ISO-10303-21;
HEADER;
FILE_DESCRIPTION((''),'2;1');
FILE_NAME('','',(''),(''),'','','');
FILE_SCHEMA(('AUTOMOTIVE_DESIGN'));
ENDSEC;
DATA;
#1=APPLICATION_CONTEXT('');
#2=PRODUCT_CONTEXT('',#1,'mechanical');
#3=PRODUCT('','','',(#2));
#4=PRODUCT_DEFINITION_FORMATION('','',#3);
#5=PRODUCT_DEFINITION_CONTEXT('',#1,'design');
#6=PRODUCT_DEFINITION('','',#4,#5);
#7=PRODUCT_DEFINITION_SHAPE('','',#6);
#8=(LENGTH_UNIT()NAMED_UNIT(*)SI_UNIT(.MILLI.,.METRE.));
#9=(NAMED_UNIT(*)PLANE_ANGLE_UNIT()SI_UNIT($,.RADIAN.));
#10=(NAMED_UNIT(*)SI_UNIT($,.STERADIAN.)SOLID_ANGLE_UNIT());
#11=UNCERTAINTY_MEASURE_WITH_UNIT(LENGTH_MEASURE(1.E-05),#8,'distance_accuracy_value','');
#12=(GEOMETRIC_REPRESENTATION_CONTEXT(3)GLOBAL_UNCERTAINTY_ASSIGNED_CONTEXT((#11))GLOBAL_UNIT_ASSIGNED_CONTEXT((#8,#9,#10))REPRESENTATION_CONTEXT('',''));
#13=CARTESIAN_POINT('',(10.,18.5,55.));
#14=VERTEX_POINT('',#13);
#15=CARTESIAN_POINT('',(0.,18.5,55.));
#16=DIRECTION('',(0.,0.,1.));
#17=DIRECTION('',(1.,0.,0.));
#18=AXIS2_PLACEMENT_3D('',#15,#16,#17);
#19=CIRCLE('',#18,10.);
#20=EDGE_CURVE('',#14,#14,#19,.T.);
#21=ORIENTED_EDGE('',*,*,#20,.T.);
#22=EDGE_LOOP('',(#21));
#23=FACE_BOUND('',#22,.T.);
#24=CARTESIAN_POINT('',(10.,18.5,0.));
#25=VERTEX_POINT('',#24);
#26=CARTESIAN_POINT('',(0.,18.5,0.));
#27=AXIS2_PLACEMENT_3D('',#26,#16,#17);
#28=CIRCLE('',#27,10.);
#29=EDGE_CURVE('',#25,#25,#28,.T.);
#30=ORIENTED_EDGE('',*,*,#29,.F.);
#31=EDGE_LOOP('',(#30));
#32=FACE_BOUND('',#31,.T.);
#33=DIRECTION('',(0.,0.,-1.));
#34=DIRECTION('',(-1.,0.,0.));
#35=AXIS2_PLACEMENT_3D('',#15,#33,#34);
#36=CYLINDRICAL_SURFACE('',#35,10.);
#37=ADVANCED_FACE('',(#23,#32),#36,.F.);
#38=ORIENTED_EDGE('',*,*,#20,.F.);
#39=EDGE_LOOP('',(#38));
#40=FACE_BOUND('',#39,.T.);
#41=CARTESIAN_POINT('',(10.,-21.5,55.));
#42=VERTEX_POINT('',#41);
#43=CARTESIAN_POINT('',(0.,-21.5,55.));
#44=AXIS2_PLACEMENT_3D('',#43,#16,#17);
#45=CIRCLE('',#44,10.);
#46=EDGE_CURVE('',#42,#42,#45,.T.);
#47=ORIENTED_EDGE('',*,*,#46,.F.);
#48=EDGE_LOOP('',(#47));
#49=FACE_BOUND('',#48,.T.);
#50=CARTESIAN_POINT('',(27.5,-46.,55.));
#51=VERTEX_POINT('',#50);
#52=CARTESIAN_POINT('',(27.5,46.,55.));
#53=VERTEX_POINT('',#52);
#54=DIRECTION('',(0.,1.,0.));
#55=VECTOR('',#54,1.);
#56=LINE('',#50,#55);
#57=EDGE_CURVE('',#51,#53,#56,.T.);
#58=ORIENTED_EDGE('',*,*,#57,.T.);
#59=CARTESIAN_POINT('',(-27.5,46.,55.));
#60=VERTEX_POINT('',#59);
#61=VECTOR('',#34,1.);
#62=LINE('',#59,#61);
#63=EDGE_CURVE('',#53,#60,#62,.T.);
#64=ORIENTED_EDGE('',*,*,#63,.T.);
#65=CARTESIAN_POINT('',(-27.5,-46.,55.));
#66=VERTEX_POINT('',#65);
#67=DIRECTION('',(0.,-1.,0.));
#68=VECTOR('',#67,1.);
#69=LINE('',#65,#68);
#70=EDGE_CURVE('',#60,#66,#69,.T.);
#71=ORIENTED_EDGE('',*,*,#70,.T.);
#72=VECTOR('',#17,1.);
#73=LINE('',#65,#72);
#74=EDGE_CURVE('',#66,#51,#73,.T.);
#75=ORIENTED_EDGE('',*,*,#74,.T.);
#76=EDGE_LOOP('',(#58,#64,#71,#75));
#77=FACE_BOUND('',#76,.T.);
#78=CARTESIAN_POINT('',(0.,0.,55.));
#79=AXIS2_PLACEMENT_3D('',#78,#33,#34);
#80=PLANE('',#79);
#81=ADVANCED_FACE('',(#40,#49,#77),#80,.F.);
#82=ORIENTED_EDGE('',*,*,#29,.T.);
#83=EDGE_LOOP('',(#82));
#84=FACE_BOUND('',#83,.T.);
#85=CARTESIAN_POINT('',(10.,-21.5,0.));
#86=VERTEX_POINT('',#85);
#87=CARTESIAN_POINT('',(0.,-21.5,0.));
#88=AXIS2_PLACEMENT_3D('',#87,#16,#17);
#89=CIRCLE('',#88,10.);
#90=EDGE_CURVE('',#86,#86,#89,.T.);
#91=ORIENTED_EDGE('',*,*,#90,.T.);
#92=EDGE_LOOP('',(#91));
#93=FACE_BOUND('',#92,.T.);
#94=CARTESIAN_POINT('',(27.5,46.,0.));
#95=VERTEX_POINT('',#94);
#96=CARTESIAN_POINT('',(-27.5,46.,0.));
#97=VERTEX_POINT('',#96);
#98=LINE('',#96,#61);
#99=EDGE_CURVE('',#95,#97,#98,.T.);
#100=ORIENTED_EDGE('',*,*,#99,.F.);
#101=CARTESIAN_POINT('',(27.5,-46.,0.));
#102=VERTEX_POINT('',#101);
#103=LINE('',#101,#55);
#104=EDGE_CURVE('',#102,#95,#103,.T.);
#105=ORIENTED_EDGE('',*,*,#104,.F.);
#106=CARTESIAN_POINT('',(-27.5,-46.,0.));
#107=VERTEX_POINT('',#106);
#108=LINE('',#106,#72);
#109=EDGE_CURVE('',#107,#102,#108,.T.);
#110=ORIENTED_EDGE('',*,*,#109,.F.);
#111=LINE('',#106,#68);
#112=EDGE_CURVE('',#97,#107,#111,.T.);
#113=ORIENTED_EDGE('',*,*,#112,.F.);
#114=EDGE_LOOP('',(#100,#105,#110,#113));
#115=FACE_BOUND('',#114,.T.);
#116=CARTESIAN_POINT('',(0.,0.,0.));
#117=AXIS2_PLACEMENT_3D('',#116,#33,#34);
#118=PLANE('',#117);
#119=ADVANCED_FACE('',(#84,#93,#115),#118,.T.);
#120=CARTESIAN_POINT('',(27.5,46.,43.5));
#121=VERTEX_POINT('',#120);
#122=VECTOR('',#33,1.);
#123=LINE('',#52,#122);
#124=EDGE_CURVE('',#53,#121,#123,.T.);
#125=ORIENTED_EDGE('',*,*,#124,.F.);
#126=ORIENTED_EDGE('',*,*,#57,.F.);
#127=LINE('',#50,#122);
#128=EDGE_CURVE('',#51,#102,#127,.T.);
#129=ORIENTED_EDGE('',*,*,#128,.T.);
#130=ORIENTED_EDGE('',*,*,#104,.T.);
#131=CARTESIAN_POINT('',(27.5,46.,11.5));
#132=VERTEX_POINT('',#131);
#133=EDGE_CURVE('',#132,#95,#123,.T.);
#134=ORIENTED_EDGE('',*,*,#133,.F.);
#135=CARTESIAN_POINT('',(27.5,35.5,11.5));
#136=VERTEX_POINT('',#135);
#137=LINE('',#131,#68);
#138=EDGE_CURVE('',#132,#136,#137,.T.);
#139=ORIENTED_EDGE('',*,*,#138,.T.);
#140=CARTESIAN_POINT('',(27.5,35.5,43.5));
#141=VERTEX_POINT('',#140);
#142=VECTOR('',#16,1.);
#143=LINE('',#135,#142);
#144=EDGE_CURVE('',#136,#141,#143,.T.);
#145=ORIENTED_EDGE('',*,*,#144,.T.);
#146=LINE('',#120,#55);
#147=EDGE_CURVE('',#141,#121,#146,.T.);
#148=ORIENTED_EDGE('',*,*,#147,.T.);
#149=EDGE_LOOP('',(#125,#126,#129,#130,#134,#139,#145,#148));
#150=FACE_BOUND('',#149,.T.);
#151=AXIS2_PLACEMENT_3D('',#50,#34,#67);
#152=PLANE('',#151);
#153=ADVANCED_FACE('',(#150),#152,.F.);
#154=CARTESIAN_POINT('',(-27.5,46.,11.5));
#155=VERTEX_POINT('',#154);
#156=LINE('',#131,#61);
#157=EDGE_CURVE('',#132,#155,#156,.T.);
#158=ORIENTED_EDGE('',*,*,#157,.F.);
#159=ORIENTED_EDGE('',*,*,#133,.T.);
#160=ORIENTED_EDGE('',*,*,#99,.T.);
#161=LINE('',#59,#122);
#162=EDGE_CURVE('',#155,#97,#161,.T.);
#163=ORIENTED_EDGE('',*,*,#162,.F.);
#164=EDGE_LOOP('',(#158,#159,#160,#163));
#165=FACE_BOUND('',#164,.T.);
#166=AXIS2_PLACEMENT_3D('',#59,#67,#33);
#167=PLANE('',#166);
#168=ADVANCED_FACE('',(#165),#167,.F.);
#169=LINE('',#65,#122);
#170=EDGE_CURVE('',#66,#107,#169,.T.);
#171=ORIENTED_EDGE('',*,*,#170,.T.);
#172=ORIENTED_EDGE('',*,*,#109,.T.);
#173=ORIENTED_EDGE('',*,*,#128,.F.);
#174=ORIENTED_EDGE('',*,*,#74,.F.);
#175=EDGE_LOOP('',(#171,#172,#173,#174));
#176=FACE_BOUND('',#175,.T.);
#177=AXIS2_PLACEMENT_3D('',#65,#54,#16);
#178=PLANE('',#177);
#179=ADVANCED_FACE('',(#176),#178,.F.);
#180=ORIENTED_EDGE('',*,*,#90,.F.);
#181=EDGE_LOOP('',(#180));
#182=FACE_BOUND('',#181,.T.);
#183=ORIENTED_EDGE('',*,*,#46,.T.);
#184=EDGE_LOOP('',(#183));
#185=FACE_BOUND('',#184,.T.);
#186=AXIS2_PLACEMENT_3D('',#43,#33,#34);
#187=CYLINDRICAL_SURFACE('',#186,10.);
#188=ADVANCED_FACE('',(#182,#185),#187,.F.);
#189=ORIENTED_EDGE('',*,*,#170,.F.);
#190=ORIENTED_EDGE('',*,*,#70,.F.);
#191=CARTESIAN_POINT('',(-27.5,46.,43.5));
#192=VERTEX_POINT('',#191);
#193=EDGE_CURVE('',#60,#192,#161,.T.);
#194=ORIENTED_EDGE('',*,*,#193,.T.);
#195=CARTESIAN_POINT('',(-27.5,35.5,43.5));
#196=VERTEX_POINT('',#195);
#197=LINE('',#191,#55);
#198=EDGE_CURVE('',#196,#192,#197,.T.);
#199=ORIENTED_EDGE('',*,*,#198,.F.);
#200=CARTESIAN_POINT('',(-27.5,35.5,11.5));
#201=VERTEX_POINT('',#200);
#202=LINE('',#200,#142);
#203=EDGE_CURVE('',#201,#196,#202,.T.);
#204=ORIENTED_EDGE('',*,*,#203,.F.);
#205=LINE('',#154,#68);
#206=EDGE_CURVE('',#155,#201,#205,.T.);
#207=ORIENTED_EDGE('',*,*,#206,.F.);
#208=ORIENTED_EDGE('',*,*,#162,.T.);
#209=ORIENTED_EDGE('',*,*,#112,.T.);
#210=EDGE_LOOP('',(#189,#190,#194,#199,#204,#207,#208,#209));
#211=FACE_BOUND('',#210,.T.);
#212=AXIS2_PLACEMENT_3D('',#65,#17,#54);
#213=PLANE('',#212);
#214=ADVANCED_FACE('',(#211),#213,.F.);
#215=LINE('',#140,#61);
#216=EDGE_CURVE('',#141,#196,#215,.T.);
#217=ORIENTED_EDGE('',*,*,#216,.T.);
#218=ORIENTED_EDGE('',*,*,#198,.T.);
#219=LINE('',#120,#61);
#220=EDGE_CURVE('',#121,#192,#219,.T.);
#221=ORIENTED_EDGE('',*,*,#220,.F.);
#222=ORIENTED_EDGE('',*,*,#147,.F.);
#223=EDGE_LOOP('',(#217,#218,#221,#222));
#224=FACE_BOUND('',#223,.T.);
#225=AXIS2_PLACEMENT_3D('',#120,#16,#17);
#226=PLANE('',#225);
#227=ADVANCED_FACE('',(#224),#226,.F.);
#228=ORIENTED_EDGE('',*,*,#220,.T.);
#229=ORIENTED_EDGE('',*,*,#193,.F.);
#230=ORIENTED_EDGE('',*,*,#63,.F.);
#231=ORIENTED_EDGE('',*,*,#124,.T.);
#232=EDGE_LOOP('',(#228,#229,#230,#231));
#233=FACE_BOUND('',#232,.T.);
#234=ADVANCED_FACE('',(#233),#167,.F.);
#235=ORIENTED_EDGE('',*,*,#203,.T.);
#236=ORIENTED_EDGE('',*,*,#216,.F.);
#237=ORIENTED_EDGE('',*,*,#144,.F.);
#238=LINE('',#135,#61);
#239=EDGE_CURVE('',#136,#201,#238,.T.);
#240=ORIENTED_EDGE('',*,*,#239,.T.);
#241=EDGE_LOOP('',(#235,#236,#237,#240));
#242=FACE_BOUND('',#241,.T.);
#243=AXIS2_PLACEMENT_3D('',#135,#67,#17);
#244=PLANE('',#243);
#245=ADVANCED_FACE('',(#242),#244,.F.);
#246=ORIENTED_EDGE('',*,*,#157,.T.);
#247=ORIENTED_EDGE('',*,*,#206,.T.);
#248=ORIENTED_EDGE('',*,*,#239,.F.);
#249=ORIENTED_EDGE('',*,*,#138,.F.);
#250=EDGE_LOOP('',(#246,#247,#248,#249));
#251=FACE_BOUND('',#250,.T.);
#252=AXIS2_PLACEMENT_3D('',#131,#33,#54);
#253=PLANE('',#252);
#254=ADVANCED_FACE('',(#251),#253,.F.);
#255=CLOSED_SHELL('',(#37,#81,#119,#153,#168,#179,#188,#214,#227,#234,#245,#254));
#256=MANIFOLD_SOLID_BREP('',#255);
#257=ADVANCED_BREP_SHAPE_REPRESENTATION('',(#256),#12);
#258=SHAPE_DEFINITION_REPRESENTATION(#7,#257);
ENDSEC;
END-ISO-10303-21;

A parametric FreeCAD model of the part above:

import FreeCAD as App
import Part
import Sketcher

V = App.Vector
Q = App.Units.Quantity

doc = App.newDocument("Part")
body = doc.addObject("PartDesign::Body", "Body")

# Sketch on XY plane
sketch1 = doc.addObject("Sketcher::SketchObject", "Sketch")
body.addObject(sketch1)
sketch1.AttachmentSupport = (doc.XY_Plane, [""])
sketch1.MapMode = "FlatFace"
sketch1.addGeometry(Part.LineSegment(V(-28, 46, 0), V(-28, -46, 0)), False)
sketch1.addGeometry(Part.LineSegment(V(-28, -46, 0), V(28, -46, 0)), False)
sketch1.addGeometry(Part.LineSegment(V(28, -46, 0), V(28, 46, 0)), False)
sketch1.addGeometry(Part.LineSegment(V(28, 46, 0), V(-28, 46, 0)), False)
sketch1.addConstraint(Sketcher.Constraint("Coincident", 0, 2, 1, 1))
sketch1.addConstraint(Sketcher.Constraint("Coincident", 1, 2, 2, 1))
sketch1.addConstraint(Sketcher.Constraint("Coincident", 2, 2, 3, 1))
sketch1.addConstraint(Sketcher.Constraint("Coincident", 3, 2, 0, 1))
sketch1.addConstraint(Sketcher.Constraint("Vertical", 0))
sketch1.addConstraint(Sketcher.Constraint("Horizontal", 1))
sketch1.addConstraint(Sketcher.Constraint("Vertical", 2))
sketch1.addConstraint(Sketcher.Constraint("Horizontal", 3))
sketch1.addConstraint(Sketcher.Constraint("Symmetric", 0, 2, 2, 2, -1, 1))
sketch1.addConstraint(Sketcher.Constraint("DistanceX", 1, 1, 1, 2, Q("55 mm")))
sketch1.addConstraint(Sketcher.Constraint("DistanceY", 0, 2, 0, 1, Q("92 mm")))
pad1 = doc.addObject("PartDesign::Pad", "Pad")
body.addObject(pad1)
pad1.Profile = sketch1
pad1.Length = 55

# Sketch on XY plane
sketch2 = doc.addObject("Sketcher::SketchObject", "Sketch001")
body.addObject(sketch2)
sketch2.AttachmentSupport = (doc.XY_Plane, [""])
sketch2.MapMode = "FlatFace"
sketch2.addGeometry(Part.Circle(V(0, 18, 0), V(0, 0, 1), 10), False)
sketch2.addGeometry(Part.Circle(V(0, -22, 0), V(0, 0, 1), 10), False)
sketch2.addConstraint(Sketcher.Constraint("Equal", 0, 1))
sketch2.addConstraint(Sketcher.Constraint("PointOnObject", 0, 3, -2))
sketch2.addConstraint(Sketcher.Constraint("PointOnObject", 1, 3, -2))
sketch2.addConstraint(Sketcher.Constraint("Diameter", 0, Q("20 mm")))
sketch2.addConstraint(Sketcher.Constraint("DistanceY", 1, 3, 0, 3, Q("40 mm")))
sketch2.addConstraint(Sketcher.Constraint("DistanceY", -1, 1, 0, 3, Q("18.5 mm")))
pocket1 = doc.addObject("PartDesign::Pocket", "Pocket")
body.addObject(pocket1)
pocket1.Profile = sketch2
pocket1.Type = "ThroughAll"
pocket1.Reversed = True

# Sketch on YZ plane
sketch3 = doc.addObject("Sketcher::SketchObject", "Sketch002")
body.addObject(sketch3)
sketch3.AttachmentSupport = (doc.YZ_Plane, [""])
sketch3.MapMode = "FlatFace"
sketch3.AttachmentOffset = App.Placement(V(0, 0, -27.5), App.Rotation())
sketch3.addGeometry(Part.LineSegment(V(46, 12, 0), V(36, 12, 0)), False)
sketch3.addGeometry(Part.LineSegment(V(36, 12, 0), V(36, 44, 0)), False)
sketch3.addGeometry(Part.LineSegment(V(36, 44, 0), V(46, 44, 0)), False)
sketch3.addGeometry(Part.LineSegment(V(46, 44, 0), V(46, 12, 0)), False)
sketch3.addConstraint(Sketcher.Constraint("Coincident", 0, 2, 1, 1))
sketch3.addConstraint(Sketcher.Constraint("Coincident", 1, 2, 2, 1))
sketch3.addConstraint(Sketcher.Constraint("Coincident", 2, 2, 3, 1))
sketch3.addConstraint(Sketcher.Constraint("Coincident", 3, 2, 0, 1))
sketch3.addConstraint(Sketcher.Constraint("Horizontal", 0))
sketch3.addConstraint(Sketcher.Constraint("Vertical", 1))
sketch3.addConstraint(Sketcher.Constraint("Horizontal", 2))
sketch3.addConstraint(Sketcher.Constraint("Vertical", 3))
sketch3.addConstraint(Sketcher.Constraint("DistanceY", 1, 1, 1, 2, Q("32 mm")))
sketch3.addConstraint(Sketcher.Constraint("DistanceX", 0, 2, 0, 1, Q("10.5 mm")))
sketch3.addConstraint(Sketcher.Constraint("DistanceX", -1, 1, 2, 2, Q("46 mm")))
sketch3.addConstraint(Sketcher.Constraint("DistanceY", -1, 1, 0, 2, Q("11.5 mm")))
pocket2 = doc.addObject("PartDesign::Pocket", "Pocket001")
body.addObject(pocket2)
pocket2.Profile = sketch3
pocket2.Length = 55
pocket2.Reversed = True

doc.recompute()
